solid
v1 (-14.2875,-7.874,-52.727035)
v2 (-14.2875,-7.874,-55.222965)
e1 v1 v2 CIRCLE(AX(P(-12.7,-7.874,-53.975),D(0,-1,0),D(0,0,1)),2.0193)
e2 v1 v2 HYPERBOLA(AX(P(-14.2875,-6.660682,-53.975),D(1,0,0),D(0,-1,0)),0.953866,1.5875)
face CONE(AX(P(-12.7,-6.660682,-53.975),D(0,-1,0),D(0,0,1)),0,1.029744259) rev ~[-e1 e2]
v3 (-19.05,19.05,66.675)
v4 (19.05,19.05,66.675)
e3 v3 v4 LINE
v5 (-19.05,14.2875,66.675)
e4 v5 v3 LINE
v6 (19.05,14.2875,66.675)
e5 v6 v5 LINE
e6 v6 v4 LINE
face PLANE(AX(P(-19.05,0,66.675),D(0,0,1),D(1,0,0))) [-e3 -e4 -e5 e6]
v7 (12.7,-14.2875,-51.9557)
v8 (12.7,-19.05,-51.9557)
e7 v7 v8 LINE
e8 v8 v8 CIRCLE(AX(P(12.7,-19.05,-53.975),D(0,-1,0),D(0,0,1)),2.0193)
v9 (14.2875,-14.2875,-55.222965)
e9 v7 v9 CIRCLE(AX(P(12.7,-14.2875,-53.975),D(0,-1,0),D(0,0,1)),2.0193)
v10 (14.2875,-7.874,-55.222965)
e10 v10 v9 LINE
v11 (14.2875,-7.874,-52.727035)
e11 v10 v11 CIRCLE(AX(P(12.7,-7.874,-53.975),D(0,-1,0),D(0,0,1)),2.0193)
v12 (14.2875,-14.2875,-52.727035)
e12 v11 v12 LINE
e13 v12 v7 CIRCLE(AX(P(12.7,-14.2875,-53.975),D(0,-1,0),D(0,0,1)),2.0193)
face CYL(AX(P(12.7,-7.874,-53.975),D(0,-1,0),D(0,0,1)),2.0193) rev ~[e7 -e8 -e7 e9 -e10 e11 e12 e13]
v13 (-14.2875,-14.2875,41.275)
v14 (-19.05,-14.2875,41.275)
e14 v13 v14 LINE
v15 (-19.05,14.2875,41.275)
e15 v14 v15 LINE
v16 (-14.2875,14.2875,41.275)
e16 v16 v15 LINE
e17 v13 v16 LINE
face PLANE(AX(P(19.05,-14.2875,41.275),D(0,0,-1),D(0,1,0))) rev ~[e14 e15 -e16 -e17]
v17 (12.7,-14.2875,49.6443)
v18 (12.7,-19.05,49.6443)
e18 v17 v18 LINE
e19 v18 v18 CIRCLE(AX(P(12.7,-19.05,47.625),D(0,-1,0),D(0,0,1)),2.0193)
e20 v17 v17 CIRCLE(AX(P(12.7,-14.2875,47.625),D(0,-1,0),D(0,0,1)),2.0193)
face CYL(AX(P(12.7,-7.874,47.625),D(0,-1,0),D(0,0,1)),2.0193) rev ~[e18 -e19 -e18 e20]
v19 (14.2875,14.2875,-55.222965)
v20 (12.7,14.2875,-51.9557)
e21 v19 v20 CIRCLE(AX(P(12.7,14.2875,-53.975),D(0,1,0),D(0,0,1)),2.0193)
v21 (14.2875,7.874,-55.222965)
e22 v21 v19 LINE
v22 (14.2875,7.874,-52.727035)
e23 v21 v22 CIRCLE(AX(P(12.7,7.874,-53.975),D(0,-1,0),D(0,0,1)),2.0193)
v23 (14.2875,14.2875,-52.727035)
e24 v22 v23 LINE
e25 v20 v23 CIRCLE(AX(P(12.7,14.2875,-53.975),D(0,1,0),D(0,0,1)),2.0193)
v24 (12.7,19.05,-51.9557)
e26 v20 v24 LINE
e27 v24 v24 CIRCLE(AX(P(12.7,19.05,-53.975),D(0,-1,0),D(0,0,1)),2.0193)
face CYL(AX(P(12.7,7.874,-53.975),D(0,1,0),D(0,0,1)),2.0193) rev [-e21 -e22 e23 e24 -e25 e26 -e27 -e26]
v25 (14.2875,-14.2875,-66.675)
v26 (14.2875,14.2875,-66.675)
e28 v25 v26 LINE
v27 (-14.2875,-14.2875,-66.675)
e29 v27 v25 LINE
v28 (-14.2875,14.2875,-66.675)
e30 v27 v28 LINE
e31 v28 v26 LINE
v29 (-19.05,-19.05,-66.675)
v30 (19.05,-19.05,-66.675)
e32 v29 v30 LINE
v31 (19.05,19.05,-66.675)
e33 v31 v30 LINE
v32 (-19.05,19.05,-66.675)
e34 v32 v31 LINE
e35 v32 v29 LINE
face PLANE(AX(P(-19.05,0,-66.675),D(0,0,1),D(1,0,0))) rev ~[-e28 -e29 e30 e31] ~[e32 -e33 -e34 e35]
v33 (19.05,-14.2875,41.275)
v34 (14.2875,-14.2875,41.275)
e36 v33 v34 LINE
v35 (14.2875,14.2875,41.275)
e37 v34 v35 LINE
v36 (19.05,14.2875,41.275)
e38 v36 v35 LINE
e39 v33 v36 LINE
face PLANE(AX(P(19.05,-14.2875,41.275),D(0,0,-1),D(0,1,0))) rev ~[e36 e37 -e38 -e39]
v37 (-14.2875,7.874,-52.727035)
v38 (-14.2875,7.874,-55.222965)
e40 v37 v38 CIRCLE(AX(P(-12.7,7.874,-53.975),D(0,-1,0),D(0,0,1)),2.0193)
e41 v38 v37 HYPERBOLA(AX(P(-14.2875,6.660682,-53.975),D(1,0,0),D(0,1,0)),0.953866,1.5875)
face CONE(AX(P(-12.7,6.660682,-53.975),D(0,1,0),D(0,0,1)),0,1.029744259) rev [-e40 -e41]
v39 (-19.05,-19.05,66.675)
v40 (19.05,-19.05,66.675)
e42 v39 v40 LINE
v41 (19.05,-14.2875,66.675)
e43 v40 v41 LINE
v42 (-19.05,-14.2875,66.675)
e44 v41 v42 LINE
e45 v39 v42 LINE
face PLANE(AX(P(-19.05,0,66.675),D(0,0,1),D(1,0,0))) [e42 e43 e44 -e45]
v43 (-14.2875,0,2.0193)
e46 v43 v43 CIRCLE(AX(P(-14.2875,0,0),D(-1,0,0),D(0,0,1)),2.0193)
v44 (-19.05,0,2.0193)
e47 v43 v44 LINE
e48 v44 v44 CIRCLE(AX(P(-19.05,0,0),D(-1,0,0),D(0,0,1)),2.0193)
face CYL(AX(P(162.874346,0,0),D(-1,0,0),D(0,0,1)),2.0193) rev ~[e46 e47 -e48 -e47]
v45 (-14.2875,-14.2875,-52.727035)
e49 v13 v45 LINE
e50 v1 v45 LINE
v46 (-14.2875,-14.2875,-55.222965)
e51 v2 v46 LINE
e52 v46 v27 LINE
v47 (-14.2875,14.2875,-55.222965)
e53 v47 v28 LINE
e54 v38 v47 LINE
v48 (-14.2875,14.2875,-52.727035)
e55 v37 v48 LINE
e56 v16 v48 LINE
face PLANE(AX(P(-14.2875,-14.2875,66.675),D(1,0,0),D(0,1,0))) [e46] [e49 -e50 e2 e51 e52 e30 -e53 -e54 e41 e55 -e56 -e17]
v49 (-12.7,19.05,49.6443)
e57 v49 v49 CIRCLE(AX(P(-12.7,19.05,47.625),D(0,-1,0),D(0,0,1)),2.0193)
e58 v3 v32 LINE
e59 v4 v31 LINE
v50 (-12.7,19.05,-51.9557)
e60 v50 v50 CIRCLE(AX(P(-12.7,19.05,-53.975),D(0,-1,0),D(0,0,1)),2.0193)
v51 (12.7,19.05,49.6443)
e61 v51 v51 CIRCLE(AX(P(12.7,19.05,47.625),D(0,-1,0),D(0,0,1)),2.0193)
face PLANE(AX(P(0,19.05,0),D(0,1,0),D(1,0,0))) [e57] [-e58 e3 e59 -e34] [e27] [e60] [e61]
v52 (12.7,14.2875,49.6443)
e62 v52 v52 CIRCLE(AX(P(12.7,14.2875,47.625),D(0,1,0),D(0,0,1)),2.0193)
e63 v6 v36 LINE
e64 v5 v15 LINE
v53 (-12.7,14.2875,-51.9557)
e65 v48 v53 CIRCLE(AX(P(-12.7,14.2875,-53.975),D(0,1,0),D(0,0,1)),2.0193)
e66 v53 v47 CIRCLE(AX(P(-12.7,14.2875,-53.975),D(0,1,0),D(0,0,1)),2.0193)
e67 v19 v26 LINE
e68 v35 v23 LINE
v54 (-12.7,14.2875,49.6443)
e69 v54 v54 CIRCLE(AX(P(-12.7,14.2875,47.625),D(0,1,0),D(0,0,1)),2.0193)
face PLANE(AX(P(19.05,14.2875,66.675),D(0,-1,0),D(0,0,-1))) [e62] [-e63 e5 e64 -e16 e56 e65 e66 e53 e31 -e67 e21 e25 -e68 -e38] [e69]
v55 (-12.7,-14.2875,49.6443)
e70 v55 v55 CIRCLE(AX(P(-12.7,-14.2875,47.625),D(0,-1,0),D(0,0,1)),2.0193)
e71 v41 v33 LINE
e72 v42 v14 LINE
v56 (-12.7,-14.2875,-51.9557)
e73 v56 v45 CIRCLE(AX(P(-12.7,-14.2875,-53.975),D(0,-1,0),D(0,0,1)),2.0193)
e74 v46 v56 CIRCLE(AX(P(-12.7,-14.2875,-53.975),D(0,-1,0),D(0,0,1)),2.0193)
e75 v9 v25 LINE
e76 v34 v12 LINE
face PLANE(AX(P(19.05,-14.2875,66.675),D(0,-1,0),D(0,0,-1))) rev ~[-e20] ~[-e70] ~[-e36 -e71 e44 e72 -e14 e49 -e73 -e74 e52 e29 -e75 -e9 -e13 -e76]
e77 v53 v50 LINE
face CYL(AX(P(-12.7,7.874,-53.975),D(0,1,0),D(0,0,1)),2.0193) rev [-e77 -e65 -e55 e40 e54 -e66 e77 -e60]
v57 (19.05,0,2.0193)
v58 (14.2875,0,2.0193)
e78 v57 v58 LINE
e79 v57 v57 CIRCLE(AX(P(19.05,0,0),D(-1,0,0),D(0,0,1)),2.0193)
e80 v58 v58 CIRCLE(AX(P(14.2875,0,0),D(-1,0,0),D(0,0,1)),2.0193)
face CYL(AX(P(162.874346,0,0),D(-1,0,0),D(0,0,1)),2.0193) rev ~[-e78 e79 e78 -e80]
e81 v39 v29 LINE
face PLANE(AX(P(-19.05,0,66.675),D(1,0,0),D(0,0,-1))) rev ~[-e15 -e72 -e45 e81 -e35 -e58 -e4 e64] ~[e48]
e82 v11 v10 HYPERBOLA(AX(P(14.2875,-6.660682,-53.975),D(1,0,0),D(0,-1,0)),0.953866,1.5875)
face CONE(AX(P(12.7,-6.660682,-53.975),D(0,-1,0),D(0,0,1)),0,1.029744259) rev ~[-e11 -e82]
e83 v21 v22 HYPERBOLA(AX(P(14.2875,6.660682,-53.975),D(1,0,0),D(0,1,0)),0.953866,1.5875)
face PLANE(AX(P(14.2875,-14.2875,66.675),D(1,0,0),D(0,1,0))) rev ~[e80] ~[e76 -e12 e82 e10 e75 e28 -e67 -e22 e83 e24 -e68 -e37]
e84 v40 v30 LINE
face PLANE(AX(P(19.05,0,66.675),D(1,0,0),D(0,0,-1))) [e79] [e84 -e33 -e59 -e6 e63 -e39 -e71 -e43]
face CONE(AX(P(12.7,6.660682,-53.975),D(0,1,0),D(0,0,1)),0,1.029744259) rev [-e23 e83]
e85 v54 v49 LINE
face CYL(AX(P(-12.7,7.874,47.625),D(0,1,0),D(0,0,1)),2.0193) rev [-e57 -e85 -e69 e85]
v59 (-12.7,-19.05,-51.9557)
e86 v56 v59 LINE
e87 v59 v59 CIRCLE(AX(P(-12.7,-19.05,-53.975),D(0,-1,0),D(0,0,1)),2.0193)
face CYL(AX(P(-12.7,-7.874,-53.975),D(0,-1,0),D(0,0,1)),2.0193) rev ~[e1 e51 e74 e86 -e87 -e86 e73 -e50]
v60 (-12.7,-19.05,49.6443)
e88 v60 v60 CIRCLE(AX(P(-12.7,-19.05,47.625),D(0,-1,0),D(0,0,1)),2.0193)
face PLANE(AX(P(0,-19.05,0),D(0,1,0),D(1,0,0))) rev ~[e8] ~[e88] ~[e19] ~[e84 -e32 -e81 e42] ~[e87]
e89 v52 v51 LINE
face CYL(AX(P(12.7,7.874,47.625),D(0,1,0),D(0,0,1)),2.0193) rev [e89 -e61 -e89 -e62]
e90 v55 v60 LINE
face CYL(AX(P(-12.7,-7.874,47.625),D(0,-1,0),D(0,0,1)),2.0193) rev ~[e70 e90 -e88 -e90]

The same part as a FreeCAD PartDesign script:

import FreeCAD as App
import Part
import Sketcher
from FreeCAD import Vector
Q = App.Units.Quantity


def add_polygon(sketch, points):
    """Adds a closed chain of lines whose ends are joined by coincident constraints."""
    first, n = sketch.GeometryCount, len(points)
    for a, b in zip(points, points[1:] + points[:1]):
        sketch.addGeometry(Part.LineSegment(App.Vector(*a, 0), App.Vector(*b, 0)), False)
    for i in range(n):
        sketch.addConstraint(Sketcher.Constraint("Coincident", first + i, 2, first + (i + 1) % n, 1))

doc = App.newDocument("Part")
body = doc.addObject("PartDesign::Body", "Body")

sketch1 = body.newObject("Sketcher::SketchObject", "Sketch")
sketch1.AttachmentSupport = (doc.getObject("XZ_Plane"), [""])
sketch1.MapMode = "FlatFace"
add_polygon(sketch1, [(-19, -67), (-19, 67), (19, 67), (19, -67)])
sketch1.addConstraint([
    Sketcher.Constraint("Vertical", 0),
    Sketcher.Constraint("Horizontal", 1),
    Sketcher.Constraint("Vertical", 2),
    Sketcher.Constraint("Horizontal", 3),
    Sketcher.Constraint("Symmetric", 0, 2, 2, 2, -1, 1),
    Sketcher.Constraint("DistanceX", 1, 1, 1, 2, Q("1.5 in")),
    Sketcher.Constraint("DistanceY", 0, 1, 0, 2, Q("5.25 in")),
])
pad1 = body.newObject("PartDesign::Pad", "Pad")
pad1.Profile = sketch1
pad1.Length = Q("1.5 in")
pad1.Midplane = True

sketch2 = body.newObject("Sketcher::SketchObject", "Sketch001")
sketch2.AttachmentSupport = (doc.getObject("XY_Plane"), [""])
sketch2.MapMode = "FlatFace"
sketch2.AttachmentOffset = App.Placement(Vector(0, 0, 2.625 * 25.4), App.Rotation())
add_polygon(sketch2, [(-14, 14), (-14, -14), (14, -14), (14, 14)])
sketch2.addConstraint([
    Sketcher.Constraint("Vertical", 0),
    Sketcher.Constraint("Horizontal", 1),
    Sketcher.Constraint("Vertical", 2),
    Sketcher.Constraint("Horizontal", 3),
    Sketcher.Constraint("Symmetric", 0, 2, 2, 2, -1, 1),
    Sketcher.Constraint("Equal", 3, 0),
    Sketcher.Constraint("DistanceX", 1, 1, 1, 2, Q("1.125 in")),
])
pocket1 = body.newObject("PartDesign::Pocket", "Pocket")
pocket1.Profile = sketch2
pocket1.Type = "ThroughAll"

sketch3 = body.newObject("Sketcher::SketchObject", "Sketch002")
sketch3.AttachmentSupport = (doc.getObject("YZ_Plane"), [""])
sketch3.MapMode = "FlatFace"
sketch3.AttachmentOffset = App.Placement(Vector(0, 0, 0.75 * 25.4), App.Rotation())
add_polygon(sketch3, [(14, 67), (-14, 67), (-14, 41), (14, 41)])
sketch3.addConstraint([
    Sketcher.Constraint("Horizontal", 0),
    Sketcher.Constraint("Vertical", 1),
    Sketcher.Constraint("Horizontal", 2),
    Sketcher.Constraint("Vertical", 3),
    Sketcher.Constraint("DistanceY", 1, 2, 1, 1, Q("1 in")),
    Sketcher.Constraint("DistanceX", 0, 2, 0, 1, Q("1.125 in")),
    Sketcher.Constraint("DistanceX", 0, 2, -1, 1, Q("0.5625 in")),
    Sketcher.Constraint("DistanceY", -1, 1, 0, 2, Q("2.625 in")),
])
pocket2 = body.newObject("PartDesign::Pocket", "Pocket001")
pocket2.Profile = sketch3
pocket2.Type = "ThroughAll"

sketch4 = body.newObject("Sketcher::SketchObject", "Sketch003")
sketch4.AttachmentSupport = (doc.getObject("YZ_Plane"), [""])
sketch4.MapMode = "FlatFace"
sketch4.AttachmentOffset = App.Placement(Vector(0, 0, -0.5 * 25.4), App.Rotation())
add_polygon(sketch4, [(6.7, 47.6), (19.1, 47.6), (19.1, 49.6), (7.9, 49.6)])
sketch4.addGeometry(Part.LineSegment(Vector(19.1, 47.6, 0), Vector(6.7, 47.6, 0)), True)
sketch4.addConstraint([
    Sketcher.Constraint("Horizontal", 0),
    Sketcher.Constraint("Vertical", 1),
    Sketcher.Constraint("Horizontal", 2),
    Sketcher.Constraint("Horizontal", 4),
    Sketcher.Constraint("Coincident", 4, 1, 0, 2),
    Sketcher.Constraint("Equal", 0, 4),
    Sketcher.Constraint("Angle", 3, Q("-121 deg")),
    Sketcher.Constraint("DistanceX", 2, 2, 2, 1, Q("0.44 in")),
    Sketcher.Constraint("DistanceX", -1, 1, 0, 2, Q("0.75 in")),
    Sketcher.Constraint("DistanceY", 1, 1, 1, 2, Q("0.0795 in")),
    Sketcher.Constraint("DistanceY", -1, 1, 0, 2, Q("1.875 in")),
])
groove = body.newObject("PartDesign::Groove", "Groove")
groove.Profile = sketch4
groove.ReferenceAxis = (sketch4, ["Axis0"])
groove.Angle = 360
doc.recompute()

linearpattern = body.newObject("PartDesign::LinearPattern", "LinearPattern")
linearpattern.Originals = [groove]
linearpattern.Direction = (doc.getObject("X_Axis"), [""])
linearpattern.Mode = "offset"
linearpattern.Offset = Q("1 in")
linearpattern.Occurrences = 2
body.Tip = linearpattern
doc.recompute()

linearpattern2 = body.newObject("PartDesign::LinearPattern", "LinearPattern001")
linearpattern2.Originals = [groove]
linearpattern2.Direction = (doc.getObject("Z_Axis"), [""])
linearpattern2.Mode = "offset"
linearpattern2.Offset = Q("4 in")
linearpattern2.Occurrences = 2
linearpattern2.Reversed = True
body.Tip = linearpattern2
doc.recompute()

datumline = body.newObject("PartDesign::Line", "DatumLine")
datumline.Placement = App.Placement(Vector(0, 0, 0), App.Rotation(Vector(0, 0, 1), Vector(0.242535625, 0, -0.9701425)))
linearpattern3 = body.newObject("PartDesign::LinearPattern", "LinearPattern002")
linearpattern3.Originals = [groove]
linearpattern3.Direction = (datumline, [""])
linearpattern3.Mode = "offset"
linearpattern3.Offset = 104.726883
linearpattern3.Occurrences = 2
body.Tip = linearpattern3

sketch5 = body.newObject("Sketcher::SketchObject", "Sketch004")
sketch5.AttachmentSupport = (doc.getObject("YZ_Plane"), [""])
sketch5.MapMode = "FlatFace"
sketch5.AttachmentOffset = App.Placement(Vector(0, 0, 0.75 * 25.4), App.Rotation())
sketch5.addGeometry(Part.Circle(Vector(0, 0, 0), Vector(0, 0, 1), 2), False)
sketch5.addConstraint([
    Sketcher.Constraint("Coincident", 0, 3, -1, 1),
    Sketcher.Constraint("Diameter", 0, Q("0.159 in")),
])
doc.recompute()
hole = body.newObject("PartDesign::Hole", "Hole")
hole.Profile = sketch5
hole.ThreadType = "None"
hole.Diameter = Q("0.159 in")
hole.DepthType = "ThroughAll"
doc.recompute()

mirrored = body.newObject("PartDesign::Mirrored", "Mirrored")
mirrored.Originals = [groove]
mirrored.MirrorPlane = (doc.getObject("XZ_Plane"), [""])
body.Tip = mirrored

sketch6 = body.newObject("Sketcher::SketchObject", "Sketch005")
sketch6.AttachmentSupport = (doc.getObject("YZ_Plane"), [""])
sketch6.MapMode = "FlatFace"
sketch6.AttachmentOffset = App.Placement(Vector(0, 0, 0.5 * 25.4), App.Rotation())
add_polygon(sketch6, [(-19.1, 47.6), (-6.7, 47.6), (-7.9, 49.6), (-19.1, 49.6)])
sketch6.addGeometry(Part.LineSegment(Vector(-6.7, 47.6, 0), Vector(-19.1, 47.6, 0)), True)
sketch6.addConstraint([
    Sketcher.Constraint("Horizontal", 0),
    Sketcher.Constraint("Horizontal", 2),
    Sketcher.Constraint("Vertical", 3),
    Sketcher.Constraint("Horizontal", 4),
    Sketcher.Constraint("Coincident", 4, 1, 0, 2),
    Sketcher.Constraint("Vertical", 2, 2, 4, 2),
    Sketcher.Constraint("Angle", 1, Q("121 deg")),
    Sketcher.Constraint("DistanceX", 2, 2, 2, 1, Q("0.44 in")),
    Sketcher.Constraint("DistanceX", 1, 2, -1, 1, Q("0.31 in")),
    Sketcher.Constraint("DistanceY", 3, 2, 3, 1, Q("0.0795 in")),
    Sketcher.Constraint("DistanceY", -1, 1, 0, 2, Q("1.875 in")),
])
groove2 = body.newObject("PartDesign::Groove", "Groove001")
groove2.Profile = sketch6
groove2.ReferenceAxis = (sketch6, ["Axis0"])
groove2.Angle = 360

sketch7 = body.newObject("Sketcher::SketchObject", "Sketch006")
sketch7.AttachmentSupport = (doc.getObject("YZ_Plane"), [""])
sketch7.MapMode = "FlatFace"
sketch7.AttachmentOffset = App.Placement(Vector(0, 0, -0.5 * 25.4), App.Rotation())
add_polygon(sketch7, [(-19.1, -54), (-6.7, -54), (-7.9, -52), (-19.1, -52)])
sketch7.addGeometry(Part.LineSegment(Vector(-6.7, -54, 0), Vector(-19.1, -54, 0)), True)
sketch7.addConstraint([
    Sketcher.Constraint("Horizontal", 0),
    Sketcher.Constraint("Horizontal", 2),
    Sketcher.Constraint("Vertical", 3),
    Sketcher.Constraint("Horizontal", 4),
    Sketcher.Constraint("Coincident", 4, 1, 0, 2),
    Sketcher.Constraint("Vertical", 2, 2, 4, 2),
    Sketcher.Constraint("Angle", 1, Q("121 deg")),
    Sketcher.Constraint("DistanceX", 2, 2, 2, 1, Q("0.44 in")),
    Sketcher.Constraint("DistanceX", 1, 2, -1, 1, Q("0.31 in")),
    Sketcher.Constraint("DistanceY", 3, 2, 3, 1, Q("0.0795 in")),
    Sketcher.Constraint("DistanceY", 0, 2, -1, 1, Q("2.125 in")),
])
groove3 = body.newObject("PartDesign::Groove", "Groove002")
groove3.Profile = sketch7
groove3.ReferenceAxis = (sketch7, ["Axis0"])
groove3.Angle = 360

sketch8 = body.newObject("Sketcher::SketchObject", "Sketch007")
sketch8.AttachmentSupport = (doc.getObject("YZ_Plane"), [""])
sketch8.MapMode = "FlatFace"
sketch8.AttachmentOffset = App.Placement(Vector(0, 0, 0.5 * 25.4), App.Rotation())
add_polygon(sketch8, [(-19.1, -54), (-6.7, -54), (-7.9, -52), (-19.1, -52)])
sketch8.addGeometry(Part.LineSegment(Vector(-6.7, -54, 0), Vector(-19.1, -54, 0)), True)
sketch8.addConstraint([
    Sketcher.Constraint("Horizontal", 0),
    Sketcher.Constraint("Horizontal", 2),
    Sketcher.Constraint("Vertical", 3),
    Sketcher.Constraint("Horizontal", 4),
    Sketcher.Constraint("Coincident", 4, 1, 0, 2),
    Sketcher.Constraint("Vertical", 2, 2, 4, 2),
    Sketcher.Constraint("Angle", 1, Q("121 deg")),
    Sketcher.Constraint("DistanceX", 2, 2, 2, 1, Q("0.44 in")),
    Sketcher.Constraint("DistanceX", 1, 2, -1, 1, Q("0.31 in")),
    Sketcher.Constraint("DistanceY", 3, 2, 3, 1, Q("0.0795 in")),
    Sketcher.Constraint("DistanceY", 0, 2, -1, 1, Q("2.125 in")),
])
groove4 = body.newObject("PartDesign::Groove", "Groove003")
groove4.Profile = sketch8
groove4.ReferenceAxis = (sketch8, ["Axis0"])
groove4.Angle = 360

doc.recompute()
